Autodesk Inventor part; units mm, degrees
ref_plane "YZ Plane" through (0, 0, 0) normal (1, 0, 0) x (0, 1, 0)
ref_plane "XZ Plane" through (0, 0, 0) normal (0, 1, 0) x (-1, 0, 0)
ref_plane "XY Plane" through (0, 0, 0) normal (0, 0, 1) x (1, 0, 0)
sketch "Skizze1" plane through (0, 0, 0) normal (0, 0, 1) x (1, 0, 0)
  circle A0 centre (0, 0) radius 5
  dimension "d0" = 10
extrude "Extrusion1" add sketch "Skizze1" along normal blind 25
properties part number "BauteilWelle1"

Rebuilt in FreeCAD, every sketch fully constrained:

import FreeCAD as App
import Part
import Sketcher

V = App.Vector
Q = App.Units.Quantity

doc = App.newDocument("Part")
body = doc.addObject("PartDesign::Body", "Body")

# Sketch on XY plane
sketch1 = doc.addObject("Sketcher::SketchObject", "Sketch")
body.addObject(sketch1)
sketch1.AttachmentSupport = (doc.XY_Plane, [""])
sketch1.MapMode = "FlatFace"
sketch1.addGeometry(Part.Circle(V(0, 0, 0), V(0, 0, 1), 5), False)
sketch1.addConstraint([
    Sketcher.Constraint("Coincident", 0, 3, -1, 1),
    Sketcher.Constraint("Diameter", 0, Q("10 mm")),
])
pad1 = doc.addObject("PartDesign::Pad", "Pad")
body.addObject(pad1)
pad1.Profile = sketch1
pad1.Length = 25

doc.recompute()
